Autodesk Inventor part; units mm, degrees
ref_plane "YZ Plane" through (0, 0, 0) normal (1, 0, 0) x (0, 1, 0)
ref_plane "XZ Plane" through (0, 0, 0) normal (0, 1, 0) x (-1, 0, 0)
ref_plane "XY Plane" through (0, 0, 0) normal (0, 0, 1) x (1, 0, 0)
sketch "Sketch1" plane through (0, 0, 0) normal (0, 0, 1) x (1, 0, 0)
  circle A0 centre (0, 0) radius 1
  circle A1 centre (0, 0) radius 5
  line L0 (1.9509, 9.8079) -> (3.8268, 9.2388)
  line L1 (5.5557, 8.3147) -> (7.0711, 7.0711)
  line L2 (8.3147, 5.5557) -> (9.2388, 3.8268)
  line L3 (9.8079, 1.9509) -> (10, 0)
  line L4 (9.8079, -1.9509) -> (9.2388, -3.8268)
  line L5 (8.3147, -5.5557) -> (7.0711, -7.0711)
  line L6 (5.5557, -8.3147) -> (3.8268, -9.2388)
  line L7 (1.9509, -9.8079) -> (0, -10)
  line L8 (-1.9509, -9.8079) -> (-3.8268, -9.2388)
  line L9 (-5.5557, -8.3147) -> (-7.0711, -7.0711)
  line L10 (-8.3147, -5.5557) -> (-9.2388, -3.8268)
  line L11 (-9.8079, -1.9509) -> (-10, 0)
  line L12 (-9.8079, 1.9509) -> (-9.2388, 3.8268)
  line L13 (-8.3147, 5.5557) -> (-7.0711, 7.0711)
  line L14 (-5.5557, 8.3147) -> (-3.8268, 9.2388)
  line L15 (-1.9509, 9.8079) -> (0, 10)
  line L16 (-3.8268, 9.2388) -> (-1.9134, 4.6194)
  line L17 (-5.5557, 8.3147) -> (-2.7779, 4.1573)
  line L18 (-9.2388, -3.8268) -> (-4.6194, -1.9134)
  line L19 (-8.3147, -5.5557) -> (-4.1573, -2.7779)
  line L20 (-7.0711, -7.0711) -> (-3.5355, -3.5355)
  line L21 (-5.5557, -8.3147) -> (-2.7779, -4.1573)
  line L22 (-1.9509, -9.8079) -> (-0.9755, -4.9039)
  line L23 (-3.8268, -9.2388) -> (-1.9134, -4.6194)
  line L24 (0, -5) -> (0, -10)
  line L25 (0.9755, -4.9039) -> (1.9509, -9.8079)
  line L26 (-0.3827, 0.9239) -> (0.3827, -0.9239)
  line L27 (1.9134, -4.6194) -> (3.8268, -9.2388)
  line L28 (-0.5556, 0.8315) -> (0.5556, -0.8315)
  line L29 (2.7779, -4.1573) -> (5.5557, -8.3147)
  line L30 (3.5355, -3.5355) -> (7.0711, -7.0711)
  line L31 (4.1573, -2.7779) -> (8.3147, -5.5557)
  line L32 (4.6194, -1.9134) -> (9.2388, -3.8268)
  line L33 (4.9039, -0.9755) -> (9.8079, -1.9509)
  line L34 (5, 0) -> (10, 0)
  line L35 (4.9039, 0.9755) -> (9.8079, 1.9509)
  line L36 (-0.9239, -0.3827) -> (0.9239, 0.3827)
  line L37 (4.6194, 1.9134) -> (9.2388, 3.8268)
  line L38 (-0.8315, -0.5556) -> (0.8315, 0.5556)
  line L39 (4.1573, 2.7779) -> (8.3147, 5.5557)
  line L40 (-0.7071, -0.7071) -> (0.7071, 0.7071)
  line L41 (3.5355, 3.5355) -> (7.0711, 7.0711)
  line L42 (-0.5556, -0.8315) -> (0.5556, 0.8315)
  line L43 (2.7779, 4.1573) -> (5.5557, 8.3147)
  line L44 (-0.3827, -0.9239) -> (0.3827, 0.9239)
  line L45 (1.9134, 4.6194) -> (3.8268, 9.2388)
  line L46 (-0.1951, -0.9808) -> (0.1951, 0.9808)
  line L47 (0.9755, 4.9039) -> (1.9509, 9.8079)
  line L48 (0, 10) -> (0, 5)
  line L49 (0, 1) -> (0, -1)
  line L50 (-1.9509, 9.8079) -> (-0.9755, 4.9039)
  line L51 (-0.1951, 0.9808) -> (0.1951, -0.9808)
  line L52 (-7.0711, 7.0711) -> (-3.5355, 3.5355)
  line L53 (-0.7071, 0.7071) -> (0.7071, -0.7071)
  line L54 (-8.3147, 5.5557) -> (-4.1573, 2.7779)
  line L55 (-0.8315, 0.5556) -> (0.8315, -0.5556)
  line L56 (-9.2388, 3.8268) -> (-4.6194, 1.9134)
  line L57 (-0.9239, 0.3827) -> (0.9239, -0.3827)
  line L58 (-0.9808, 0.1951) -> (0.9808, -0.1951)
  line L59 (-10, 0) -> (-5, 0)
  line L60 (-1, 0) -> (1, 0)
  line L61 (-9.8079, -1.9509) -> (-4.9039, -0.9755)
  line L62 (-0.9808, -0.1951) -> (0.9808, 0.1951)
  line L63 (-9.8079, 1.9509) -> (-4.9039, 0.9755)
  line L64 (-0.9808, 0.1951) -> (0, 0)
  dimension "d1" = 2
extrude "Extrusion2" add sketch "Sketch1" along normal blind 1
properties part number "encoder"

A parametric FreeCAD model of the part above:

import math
import FreeCAD as App
import Part
import Sketcher
Q = App.Units.Quantity

doc = App.newDocument("Part")
body = doc.addObject("PartDesign::Body", "Body")

sketch1 = doc.addObject("Sketcher::SketchObject", "Sketch")
body.addObject(sketch1)
sketch1.AttachmentSupport = (doc.XY_Plane, [""])
sketch1.MapMode = "FlatFace"
sketch1.addGeometry(Part.ArcOfCircle(Part.Circle(App.Vector(0, 0, 0), App.Vector(0, 0, 1), 5), math.radians(-11.25), math.radians(0)), False)
sketch1.addGeometry(Part.LineSegment(App.Vector(5, 0, 0), App.Vector(10, 0, 0)), False)
sketch1.addGeometry(Part.LineSegment(App.Vector(10, 0, 0), App.Vector(9.8, 2, 0)), False)
sketch1.addGeometry(Part.LineSegment(App.Vector(9.8, 2, 0), App.Vector(4.9, 1, 0)), False)
sketch1.addGeometry(Part.ArcOfCircle(Part.Circle(App.Vector(0, 0, 0), App.Vector(0, 0, 1), 5), math.radians(11.25), math.radians(22.5)), False)
sketch1.addGeometry(Part.LineSegment(App.Vector(4.6, 1.9, 0), App.Vector(9.2, 3.8, 0)), False)
sketch1.addGeometry(Part.LineSegment(App.Vector(9.2, 3.8, 0), App.Vector(8.3, 5.6, 0)), False)
sketch1.addGeometry(Part.LineSegment(App.Vector(8.3, 5.6, 0), App.Vector(4.2, 2.8, 0)), False)
sketch1.addGeometry(Part.ArcOfCircle(Part.Circle(App.Vector(0, 0, 0), App.Vector(0, 0, 1), 5), math.radians(33.75), math.radians(45)), False)
sketch1.addGeometry(Part.LineSegment(App.Vector(3.5, 3.5, 0), App.Vector(7.1, 7.1, 0)), False)
sketch1.addGeometry(Part.LineSegment(App.Vector(7.1, 7.1, 0), App.Vector(5.6, 8.3, 0)), False)
sketch1.addGeometry(Part.LineSegment(App.Vector(5.6, 8.3, 0), App.Vector(2.8, 4.2, 0)), False)
sketch1.addGeometry(Part.ArcOfCircle(Part.Circle(App.Vector(0, 0, 0), App.Vector(0, 0, 1), 5), math.radians(56.25), math.radians(67.5)), False)
sketch1.addGeometry(Part.LineSegment(App.Vector(1.9, 4.6, 0), App.Vector(3.8, 9.2, 0)), False)
sketch1.addGeometry(Part.LineSegment(App.Vector(3.8, 9.2, 0), App.Vector(2, 9.8, 0)), False)
sketch1.addGeometry(Part.LineSegment(App.Vector(2, 9.8, 0), App.Vector(1, 4.9, 0)), False)
sketch1.addGeometry(Part.ArcOfCircle(Part.Circle(App.Vector(0, 0, 0), App.Vector(0, 0, 1), 5), math.radians(78.75), math.radians(90)), False)
sketch1.addGeometry(Part.LineSegment(App.Vector(0, 5, 0), App.Vector(0, 10, 0)), False)
sketch1.addGeometry(Part.LineSegment(App.Vector(0, 10, 0), App.Vector(-2, 9.8, 0)), False)
sketch1.addGeometry(Part.LineSegment(App.Vector(-2, 9.8, 0), App.Vector(-1, 4.9, 0)), False)
sketch1.addGeometry(Part.ArcOfCircle(Part.Circle(App.Vector(0, 0, 0), App.Vector(0, 0, 1), 5), math.radians(101.25), math.radians(112.5)), False)
sketch1.addGeometry(Part.LineSegment(App.Vector(-1.9, 4.6, 0), App.Vector(-3.8, 9.2, 0)), False)
sketch1.addGeometry(Part.LineSegment(App.Vector(-3.8, 9.2, 0), App.Vector(-5.6, 8.3, 0)), False)
sketch1.addGeometry(Part.LineSegment(App.Vector(-5.6, 8.3, 0), App.Vector(-2.8, 4.2, 0)), False)
sketch1.addGeometry(Part.ArcOfCircle(Part.Circle(App.Vector(0, 0, 0), App.Vector(0, 0, 1), 5), math.radians(123.75), math.radians(135)), False)
sketch1.addGeometry(Part.LineSegment(App.Vector(-3.5, 3.5, 0), App.Vector(-7.1, 7.1, 0)), False)
sketch1.addGeometry(Part.LineSegment(App.Vector(-7.1, 7.1, 0), App.Vector(-8.3, 5.6, 0)), False)
sketch1.addGeometry(Part.LineSegment(App.Vector(-8.3, 5.6, 0), App.Vector(-4.2, 2.8, 0)), False)
sketch1.addGeometry(Part.ArcOfCircle(Part.Circle(App.Vector(0, 0, 0), App.Vector(0, 0, 1), 5), math.radians(146.25), math.radians(157.5)), False)
sketch1.addGeometry(Part.LineSegment(App.Vector(-4.6, 1.9, 0), App.Vector(-9.2, 3.8, 0)), False)
sketch1.addGeometry(Part.LineSegment(App.Vector(-9.2, 3.8, 0), App.Vector(-9.8, 2, 0)), False)
sketch1.addGeometry(Part.LineSegment(App.Vector(-9.8, 2, 0), App.Vector(-4.9, 1, 0)), False)
sketch1.addGeometry(Part.ArcOfCircle(Part.Circle(App.Vector(0, 0, 0), App.Vector(0, 0, 1), 5), math.radians(168.75), math.radians(180)), False)
sketch1.addGeometry(Part.LineSegment(App.Vector(-5, 0, 0), App.Vector(-10, 0, 0)), False)
sketch1.addGeometry(Part.LineSegment(App.Vector(-10, 0, 0), App.Vector(-9.8, -2, 0)), False)
sketch1.addGeometry(Part.LineSegment(App.Vector(-9.8, -2, 0), App.Vector(-4.9, -1, 0)), False)
sketch1.addGeometry(Part.ArcOfCircle(Part.Circle(App.Vector(0, 0, 0), App.Vector(0, 0, 1), 5), math.radians(-168.75), math.radians(-157.5)), False)
sketch1.addGeometry(Part.LineSegment(App.Vector(-4.6, -1.9, 0), App.Vector(-9.2, -3.8, 0)), False)
sketch1.addGeometry(Part.LineSegment(App.Vector(-9.2, -3.8, 0), App.Vector(-8.3, -5.6, 0)), False)
sketch1.addGeometry(Part.LineSegment(App.Vector(-8.3, -5.6, 0), App.Vector(-4.2, -2.8, 0)), False)
sketch1.addGeometry(Part.ArcOfCircle(Part.Circle(App.Vector(0, 0, 0), App.Vector(0, 0, 1), 5), math.radians(-146.25), math.radians(-135)), False)
sketch1.addGeometry(Part.LineSegment(App.Vector(-3.5, -3.5, 0), App.Vector(-7.1, -7.1, 0)), False)
sketch1.addGeometry(Part.LineSegment(App.Vector(-7.1, -7.1, 0), App.Vector(-5.6, -8.3, 0)), False)
sketch1.addGeometry(Part.LineSegment(App.Vector(-5.6, -8.3, 0), App.Vector(-2.8, -4.2, 0)), False)
sketch1.addGeometry(Part.ArcOfCircle(Part.Circle(App.Vector(0, 0, 0), App.Vector(0, 0, 1), 5), math.radians(-123.75), math.radians(-112.5)), False)
sketch1.addGeometry(Part.LineSegment(App.Vector(-1.9, -4.6, 0), App.Vector(-3.8, -9.2, 0)), False)
sketch1.addGeometry(Part.LineSegment(App.Vector(-3.8, -9.2, 0), App.Vector(-2, -9.8, 0)), False)
sketch1.addGeometry(Part.LineSegment(App.Vector(-2, -9.8, 0), App.Vector(-1, -4.9, 0)), False)
sketch1.addGeometry(Part.ArcOfCircle(Part.Circle(App.Vector(0, 0, 0), App.Vector(0, 0, 1), 5), math.radians(-101.25), math.radians(-90)), False)
sketch1.addGeometry(Part.LineSegment(App.Vector(0, -5, 0), App.Vector(0, -10, 0)), False)
sketch1.addGeometry(Part.LineSegment(App.Vector(0, -10, 0), App.Vector(2, -9.8, 0)), False)
sketch1.addGeometry(Part.LineSegment(App.Vector(2, -9.8, 0), App.Vector(1, -4.9, 0)), False)
sketch1.addGeometry(Part.ArcOfCircle(Part.Circle(App.Vector(0, 0, 0), App.Vector(0, 0, 1), 5), math.radians(-78.75), math.radians(-67.5)), False)
sketch1.addGeometry(Part.LineSegment(App.Vector(1.9, -4.6, 0), App.Vector(3.8, -9.2, 0)), False)
sketch1.addGeometry(Part.LineSegment(App.Vector(3.8, -9.2, 0), App.Vector(5.6, -8.3, 0)), False)
sketch1.addGeometry(Part.LineSegment(App.Vector(5.6, -8.3, 0), App.Vector(2.8, -4.2, 0)), False)
sketch1.addGeometry(Part.ArcOfCircle(Part.Circle(App.Vector(0, 0, 0), App.Vector(0, 0, 1), 5), math.radians(-56.25), math.radians(-45)), False)
sketch1.addGeometry(Part.LineSegment(App.Vector(3.5, -3.5, 0), App.Vector(7.1, -7.1, 0)), False)
sketch1.addGeometry(Part.LineSegment(App.Vector(7.1, -7.1, 0), App.Vector(8.3, -5.6, 0)), False)
sketch1.addGeometry(Part.LineSegment(App.Vector(8.3, -5.6, 0), App.Vector(4.2, -2.8, 0)), False)
sketch1.addGeometry(Part.ArcOfCircle(Part.Circle(App.Vector(0, 0, 0), App.Vector(0, 0, 1), 5), math.radians(-33.75), math.radians(-22.5)), False)
sketch1.addGeometry(Part.LineSegment(App.Vector(4.6, -1.9, 0), App.Vector(9.2, -3.8, 0)), False)
sketch1.addGeometry(Part.LineSegment(App.Vector(9.2, -3.8, 0), App.Vector(9.8, -2, 0)), False)
sketch1.addGeometry(Part.LineSegment(App.Vector(9.8, -2, 0), App.Vector(4.9, -1, 0)), False)
sketch1.addGeometry(Part.Circle(App.Vector(0, 0, 0), App.Vector(0, 0, 1), 1), False)
sketch1.addConstraint(Sketcher.Constraint("Coincident", 0, 2, 1, 1))
sketch1.addConstraint(Sketcher.Constraint("Coincident", 1, 2, 2, 1))
sketch1.addConstraint(Sketcher.Constraint("Coincident", 2, 2, 3, 1))
sketch1.addConstraint(Sketcher.Constraint("Coincident", 3, 2, 4, 1))
sketch1.addConstraint(Sketcher.Constraint("Coincident", 4, 2, 5, 1))
sketch1.addConstraint(Sketcher.Constraint("Coincident", 5, 2, 6, 1))
sketch1.addConstraint(Sketcher.Constraint("Coincident", 6, 2, 7, 1))
sketch1.addConstraint(Sketcher.Constraint("Coincident", 7, 2, 8, 1))
sketch1.addConstraint(Sketcher.Constraint("Coincident", 8, 2, 9, 1))
sketch1.addConstraint(Sketcher.Constraint("Coincident", 9, 2, 10, 1))
sketch1.addConstraint(Sketcher.Constraint("Coincident", 10, 2, 11, 1))
sketch1.addConstraint(Sketcher.Constraint("Coincident", 11, 2, 12, 1))
sketch1.addConstraint(Sketcher.Constraint("Coincident", 12, 2, 13, 1))
sketch1.addConstraint(Sketcher.Constraint("Coincident", 13, 2, 14, 1))
sketch1.addConstraint(Sketcher.Constraint("Coincident", 14, 2, 15, 1))
sketch1.addConstraint(Sketcher.Constraint("Coincident", 15, 2, 16, 1))
sketch1.addConstraint(Sketcher.Constraint("Coincident", 16, 2, 17, 1))
sketch1.addConstraint(Sketcher.Constraint("Coincident", 17, 2, 18, 1))
sketch1.addConstraint(Sketcher.Constraint("Coincident", 18, 2, 19, 1))
sketch1.addConstraint(Sketcher.Constraint("Coincident", 19, 2, 20, 1))
sketch1.addConstraint(Sketcher.Constraint("Coincident", 20, 2, 21, 1))
sketch1.addConstraint(Sketcher.Constraint("Coincident", 21, 2, 22, 1))
sketch1.addConstraint(Sketcher.Constraint("Coincident", 22, 2, 23, 1))
sketch1.addConstraint(Sketcher.Constraint("Coincident", 23, 2, 24, 1))
sketch1.addConstraint(Sketcher.Constraint("Coincident", 24, 2, 25, 1))
sketch1.addConstraint(Sketcher.Constraint("Coincident", 25, 2, 26, 1))
sketch1.addConstraint(Sketcher.Constraint("Coincident", 26, 2, 27, 1))
sketch1.addConstraint(Sketcher.Constraint("Coincident", 27, 2, 28, 1))
sketch1.addConstraint(Sketcher.Constraint("Coincident", 28, 2, 29, 1))
sketch1.addConstraint(Sketcher.Constraint("Coincident", 29, 2, 30, 1))
sketch1.addConstraint(Sketcher.Constraint("Coincident", 30, 2, 31, 1))
sketch1.addConstraint(Sketcher.Constraint("Coincident", 31, 2, 32, 1))
sketch1.addConstraint(Sketcher.Constraint("Coincident", 32, 2, 33, 1))
sketch1.addConstraint(Sketcher.Constraint("Coincident", 33, 2, 34, 1))
sketch1.addConstraint(Sketcher.Constraint("Coincident", 34, 2, 35, 1))
sketch1.addConstraint(Sketcher.Constraint("Coincident", 35, 2, 36, 1))
sketch1.addConstraint(Sketcher.Constraint("Coincident", 36, 2, 37, 1))
sketch1.addConstraint(Sketcher.Constraint("Coincident", 37, 2, 38, 1))
sketch1.addConstraint(Sketcher.Constraint("Coincident", 38, 2, 39, 1))
sketch1.addConstraint(Sketcher.Constraint("Coincident", 39, 2, 40, 1))
sketch1.addConstraint(Sketcher.Constraint("Coincident", 40, 2, 41, 1))
sketch1.addConstraint(Sketcher.Constraint("Coincident", 41, 2, 42, 1))
sketch1.addConstraint(Sketcher.Constraint("Coincident", 42, 2, 43, 1))
sketch1.addConstraint(Sketcher.Constraint("Coincident", 43, 2, 44, 1))
sketch1.addConstraint(Sketcher.Constraint("Coincident", 44, 2, 45, 1))
sketch1.addConstraint(Sketcher.Constraint("Coincident", 45, 2, 46, 1))
sketch1.addConstraint(Sketcher.Constraint("Coincident", 46, 2, 47, 1))
sketch1.addConstraint(Sketcher.Constraint("Coincident", 47, 2, 48, 1))
sketch1.addConstraint(Sketcher.Constraint("Coincident", 48, 2, 49, 1))
sketch1.addConstraint(Sketcher.Constraint("Coincident", 49, 2, 50, 1))
sketch1.addConstraint(Sketcher.Constraint("Coincident", 50, 2, 51, 1))
sketch1.addConstraint(Sketcher.Constraint("Coincident", 51, 2, 52, 1))
sketch1.addConstraint(Sketcher.Constraint("Coincident", 52, 2, 53, 1))
sketch1.addConstraint(Sketcher.Constraint("Coincident", 53, 2, 54, 1))
sketch1.addConstraint(Sketcher.Constraint("Coincident", 54, 2, 55, 1))
sketch1.addConstraint(Sketcher.Constraint("Coincident", 55, 2, 56, 1))
sketch1.addConstraint(Sketcher.Constraint("Coincident", 56, 2, 57, 1))
sketch1.addConstraint(Sketcher.Constraint("Coincident", 57, 2, 58, 1))
sketch1.addConstraint(Sketcher.Constraint("Coincident", 58, 2, 59, 1))
sketch1.addConstraint(Sketcher.Constraint("Coincident", 59, 2, 60, 1))
sketch1.addConstraint(Sketcher.Constraint("Coincident", 60, 2, 61, 1))
sketch1.addConstraint(Sketcher.Constraint("Coincident", 61, 2, 62, 1))
sketch1.addConstraint(Sketcher.Constraint("Coincident", 62, 2, 63, 1))
sketch1.addConstraint(Sketcher.Constraint("Coincident", 63, 2, 0, 1))
sketch1.addConstraint(Sketcher.Constraint("Horizontal", 1))
sketch1.addConstraint(Sketcher.Constraint("Vertical", 17))
sketch1.addConstraint(Sketcher.Constraint("Horizontal", 33))
sketch1.addConstraint(Sketcher.Constraint("Vertical", 49))
sketch1.addConstraint(Sketcher.Constraint("Coincident", 0, 3, -1, 1))
sketch1.addConstraint(Sketcher.Constraint("Coincident", 4, 3, -1, 1))
sketch1.addConstraint(Sketcher.Constraint("Coincident", 8, 3, -1, 1))
sketch1.addConstraint(Sketcher.Constraint("Coincident", 12, 3, -1, 1))
sketch1.addConstraint(Sketcher.Constraint("Coincident", 16, 3, -1, 1))
sketch1.addConstraint(Sketcher.Constraint("Coincident", 20, 3, -1, 1))
sketch1.addConstraint(Sketcher.Constraint("Coincident", 24, 3, -1, 1))
sketch1.addConstraint(Sketcher.Constraint("Coincident", 28, 3, -1, 1))
sketch1.addConstraint(Sketcher.Constraint("Coincident", 32, 3, -1, 1))
sketch1.addConstraint(Sketcher.Constraint("Coincident", 36, 3, -1, 1))
sketch1.addConstraint(Sketcher.Constraint("Coincident", 40, 3, -1, 1))
sketch1.addConstraint(Sketcher.Constraint("Coincident", 44, 3, -1, 1))
sketch1.addConstraint(Sketcher.Constraint("Coincident", 48, 3, -1, 1))
sketch1.addConstraint(Sketcher.Constraint("Coincident", 52, 3, -1, 1))
sketch1.addConstraint(Sketcher.Constraint("Coincident", 56, 3, -1, 1))
sketch1.addConstraint(Sketcher.Constraint("Coincident", 60, 3, -1, 1))
sketch1.addConstraint(Sketcher.Constraint("Coincident", 64, 3, -1, 1))
sketch1.addConstraint(Sketcher.Constraint("Equal", 0, 4))
sketch1.addConstraint(Sketcher.Constraint("Equal", 4, 8))
sketch1.addConstraint(Sketcher.Constraint("Equal", 8, 12))
sketch1.addConstraint(Sketcher.Constraint("Equal", 12, 16))
sketch1.addConstraint(Sketcher.Constraint("Equal", 16, 20))
sketch1.addConstraint(Sketcher.Constraint("Equal", 20, 24))
sketch1.addConstraint(Sketcher.Constraint("Equal", 24, 28))
sketch1.addConstraint(Sketcher.Constraint("Equal", 28, 32))
sketch1.addConstraint(Sketcher.Constraint("Equal", 32, 36))
sketch1.addConstraint(Sketcher.Constraint("Equal", 36, 40))
sketch1.addConstraint(Sketcher.Constraint("Equal", 40, 44))
sketch1.addConstraint(Sketcher.Constraint("Equal", 44, 48))
sketch1.addConstraint(Sketcher.Constraint("Equal", 48, 52))
sketch1.addConstraint(Sketcher.Constraint("Equal", 52, 56))
sketch1.addConstraint(Sketcher.Constraint("Equal", 56, 60))
sketch1.addConstraint(Sketcher.Constraint("Symmetric", 1, 2, 33, 2, -1, 1))
sketch1.addConstraint(Sketcher.Constraint("Symmetric", 2, 2, 34, 2, -1, 1))
sketch1.addConstraint(Sketcher.Constraint("Symmetric", 5, 2, 37, 2, -1, 1))
sketch1.addConstraint(Sketcher.Constraint("Symmetric", 6, 2, 38, 2, -1, 1))
sketch1.addConstraint(Sketcher.Constraint("Symmetric", 9, 2, 41, 2, -1, 1))
sketch1.addConstraint(Sketcher.Constraint("Symmetric", 10, 2, 42, 2, -1, 1))
sketch1.addConstraint(Sketcher.Constraint("Symmetric", 13, 2, 45, 2, -1, 1))
sketch1.addConstraint(Sketcher.Constraint("Symmetric", 14, 2, 46, 2, -1, 1))
sketch1.addConstraint(Sketcher.Constraint("Symmetric", 17, 2, 49, 2, -1, 1))
sketch1.addConstraint(Sketcher.Constraint("Symmetric", 18, 2, 50, 2, -1, 1))
sketch1.addConstraint(Sketcher.Constraint("Symmetric", 21, 2, 53, 2, -1, 1))
sketch1.addConstraint(Sketcher.Constraint("Symmetric", 22, 2, 54, 2, -1, 1))
sketch1.addConstraint(Sketcher.Constraint("Symmetric", 25, 2, 57, 2, -1, 1))
sketch1.addConstraint(Sketcher.Constraint("Symmetric", 26, 2, 58, 2, -1, 1))
sketch1.addConstraint(Sketcher.Constraint("Symmetric", 29, 2, 61, 2, -1, 1))
sketch1.addConstraint(Sketcher.Constraint("Symmetric", 30, 2, 62, 2, -1, 1))
sketch1.addConstraint(Sketcher.Constraint("Symmetric", 14, 2, 18, 2, -2))
sketch1.addConstraint(Sketcher.Constraint("Symmetric", 13, 2, 21, 2, -2))
sketch1.addConstraint(Sketcher.Constraint("Symmetric", 10, 2, 22, 2, -2))
sketch1.addConstraint(Sketcher.Constraint("Symmetric", 9, 2, 25, 2, -2))
sketch1.addConstraint(Sketcher.Constraint("Symmetric", 6, 2, 26, 2, -2))
sketch1.addConstraint(Sketcher.Constraint("Symmetric", 5, 2, 29, 2, -2))
sketch1.addConstraint(Sketcher.Constraint("Symmetric", 2, 2, 30, 2, -2))
sketch1.addConstraint(Sketcher.Constraint("PointOnObject", 0, 2, -1))
sketch1.addConstraint(Sketcher.Constraint("PointOnObject", 16, 2, -2))
sketch1.addConstraint(Sketcher.Constraint("Perpendicular", 2, 18))
sketch1.addConstraint(Sketcher.Constraint("Perpendicular", 3, 19))
sketch1.addConstraint(Sketcher.Constraint("Perpendicular", 5, 21))
sketch1.addConstraint(Sketcher.Constraint("Perpendicular", 6, 22))
sketch1.addConstraint(Sketcher.Constraint("Perpendicular", 7, 23))
sketch1.addConstraint(Sketcher.Constraint("Perpendicular", 9, 25))
sketch1.addConstraint(Sketcher.Constraint("Perpendicular", 10, 26))
sketch1.addConstraint(Sketcher.Constraint("Perpendicular", 11, 27))
sketch1.addConstraint(Sketcher.Constraint("Perpendicular", 13, 29))
sketch1.addConstraint(Sketcher.Constraint("Perpendicular", 14, 30))
sketch1.addConstraint(Sketcher.Constraint("Perpendicular", 15, 31))
sketch1.addConstraint(Sketcher.Constraint("Perpendicular", 19, 35))
sketch1.addConstraint(Sketcher.Constraint("Perpendicular", 21, 37))
sketch1.addConstraint(Sketcher.Constraint("Perpendicular", 23, 39))
sketch1.addConstraint(Sketcher.Constraint("Perpendicular", 25, 41))
sketch1.addConstraint(Sketcher.Constraint("Perpendicular", 27, 43))
sketch1.addConstraint(Sketcher.Constraint("Perpendicular", 29, 45))
sketch1.addConstraint(Sketcher.Constraint("Perpendicular", 31, 47))
sketch1.addConstraint(Sketcher.Constraint("Perpendicular", 35, 51))
sketch1.addConstraint(Sketcher.Constraint("Perpendicular", 37, 53))
sketch1.addConstraint(Sketcher.Constraint("Perpendicular", 39, 55))
sketch1.addConstraint(Sketcher.Constraint("Perpendicular", 41, 57))
sketch1.addConstraint(Sketcher.Constraint("Perpendicular", 43, 59))
sketch1.addConstraint(Sketcher.Constraint("Perpendicular", 45, 61))
sketch1.addConstraint(Sketcher.Constraint("Perpendicular", 47, 63))
sketch1.addConstraint(Sketcher.Constraint("Horizontal", 15, 2, 19, 2))
sketch1.addConstraint(Sketcher.Constraint("Horizontal", 12, 2, 20, 2))
sketch1.addConstraint(Sketcher.Constraint("Horizontal", 11, 2, 23, 2))
sketch1.addConstraint(Sketcher.Constraint("Horizontal", 8, 2, 24, 2))
sketch1.addConstraint(Sketcher.Constraint("Equal", 33, 17))
sketch1.addConstraint(Sketcher.Constraint("Equal", 3, 5))
sketch1.addConstraint(Sketcher.Constraint("Equal", 2, 6))
sketch1.addConstraint(Sketcher.Constraint("Equal", 5, 7))
sketch1.addConstraint(Sketcher.Constraint("Equal", 7, 9))
sketch1.addConstraint(Sketcher.Constraint("Equal", 6, 10))
sketch1.addConstraint(Sketcher.Constraint("Equal", 9, 11))
sketch1.addConstraint(Sketcher.Constraint("Equal", 11, 13))
sketch1.addConstraint(Sketcher.Constraint("Equal", 10, 14))
sketch1.addConstraint(Sketcher.Constraint("Equal", 13, 15))
sketch1.addConstraint(Sketcher.Constraint("Diameter", 64, Q("2 mm")))
sketch1.addConstraint(Sketcher.Constraint("Radius", 0, Q("5 mm")))
sketch1.addConstraint(Sketcher.Constraint("DistanceX", 1, 1, 1, 2, Q("5 mm")))
sketch1.addConstraint(Sketcher.Constraint("Distance", 3, Q("5 mm")))
sketch1.addConstraint(Sketcher.Constraint("Angle", 5, Q("22.4998 deg")))
sketch1.addConstraint(Sketcher.Constraint("Angle", 3, Q("-168.7507 deg")))
sketch1.addConstraint(Sketcher.Constraint("Angle", 7, Q("-146.2508 deg")))
pad1 = doc.addObject("PartDesign::Pad", "Pad")
body.addObject(pad1)
pad1.Profile = sketch1
pad1.Length = 1

doc.recompute()
